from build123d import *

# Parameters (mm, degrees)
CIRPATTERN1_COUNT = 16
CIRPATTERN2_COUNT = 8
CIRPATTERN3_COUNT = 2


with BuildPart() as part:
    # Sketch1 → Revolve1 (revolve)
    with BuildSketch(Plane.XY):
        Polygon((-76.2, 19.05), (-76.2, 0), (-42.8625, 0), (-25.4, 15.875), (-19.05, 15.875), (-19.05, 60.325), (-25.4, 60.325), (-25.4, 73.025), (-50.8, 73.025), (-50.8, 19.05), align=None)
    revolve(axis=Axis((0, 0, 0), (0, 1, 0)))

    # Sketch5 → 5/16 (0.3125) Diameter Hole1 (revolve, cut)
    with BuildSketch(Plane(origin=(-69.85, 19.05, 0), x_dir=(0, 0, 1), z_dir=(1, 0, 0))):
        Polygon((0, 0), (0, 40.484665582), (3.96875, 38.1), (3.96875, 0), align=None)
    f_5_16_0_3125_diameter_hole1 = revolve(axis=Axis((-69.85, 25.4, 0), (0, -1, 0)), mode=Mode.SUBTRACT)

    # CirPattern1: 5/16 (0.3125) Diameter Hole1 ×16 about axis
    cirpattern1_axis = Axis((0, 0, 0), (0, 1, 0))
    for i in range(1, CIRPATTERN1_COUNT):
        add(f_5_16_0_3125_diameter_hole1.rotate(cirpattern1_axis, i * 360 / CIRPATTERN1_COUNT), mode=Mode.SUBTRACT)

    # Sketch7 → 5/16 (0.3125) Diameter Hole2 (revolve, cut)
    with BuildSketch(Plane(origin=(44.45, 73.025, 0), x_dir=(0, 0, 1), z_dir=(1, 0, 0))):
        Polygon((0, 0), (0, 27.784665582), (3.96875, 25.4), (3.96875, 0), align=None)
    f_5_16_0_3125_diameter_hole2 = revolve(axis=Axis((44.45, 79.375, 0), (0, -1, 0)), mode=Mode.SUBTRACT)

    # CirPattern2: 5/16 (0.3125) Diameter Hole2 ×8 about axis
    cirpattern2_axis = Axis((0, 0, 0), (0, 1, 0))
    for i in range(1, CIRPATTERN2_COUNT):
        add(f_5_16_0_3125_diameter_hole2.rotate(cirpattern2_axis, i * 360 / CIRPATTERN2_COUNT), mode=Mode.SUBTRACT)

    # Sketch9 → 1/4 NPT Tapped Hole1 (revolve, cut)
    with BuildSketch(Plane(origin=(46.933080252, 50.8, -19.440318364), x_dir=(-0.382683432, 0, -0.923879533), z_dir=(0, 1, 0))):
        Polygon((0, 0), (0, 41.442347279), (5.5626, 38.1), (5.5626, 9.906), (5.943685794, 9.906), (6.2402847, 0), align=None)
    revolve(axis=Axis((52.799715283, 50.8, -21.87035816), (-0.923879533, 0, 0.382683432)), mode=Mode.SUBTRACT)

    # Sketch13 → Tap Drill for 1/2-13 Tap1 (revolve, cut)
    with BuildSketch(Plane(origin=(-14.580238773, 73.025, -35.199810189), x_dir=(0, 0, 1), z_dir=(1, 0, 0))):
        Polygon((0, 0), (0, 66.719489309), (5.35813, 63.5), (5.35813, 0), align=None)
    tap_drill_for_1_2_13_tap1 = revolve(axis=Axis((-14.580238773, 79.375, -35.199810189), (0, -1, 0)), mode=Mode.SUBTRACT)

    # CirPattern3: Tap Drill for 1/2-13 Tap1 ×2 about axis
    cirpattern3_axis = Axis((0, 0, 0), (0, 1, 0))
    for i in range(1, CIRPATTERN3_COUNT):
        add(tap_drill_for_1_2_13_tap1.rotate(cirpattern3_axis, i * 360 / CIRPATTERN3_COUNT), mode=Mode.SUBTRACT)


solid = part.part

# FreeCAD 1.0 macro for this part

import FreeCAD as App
import Part
import Sketcher
from FreeCAD import Vector
Q = App.Units.Quantity


def add_polygon(sketch, points):
    """Adds a closed chain of lines whose ends are joined by coincident constraints."""
    first, n = sketch.GeometryCount, len(points)
    for a, b in zip(points, points[1:] + points[:1]):
        sketch.addGeometry(Part.LineSegment(App.Vector(*a, 0), App.Vector(*b, 0)), False)
    for i in range(n):
        sketch.addConstraint(Sketcher.Constraint("Coincident", first + i, 2, first + (i + 1) % n, 1))

doc = App.newDocument("Part")
body = doc.addObject("PartDesign::Body", "Body")

sketch1 = body.newObject("Sketcher::SketchObject", "Sketch")
sketch1.AttachmentSupport = (doc.getObject("XY_Plane"), [""])
sketch1.MapMode = "FlatFace"
add_polygon(sketch1, [(-76, 19), (-76, 0), (-43, 0), (-25, 16), (-19, 16), (-19, 60), (-25, 60), (-25, 73), (-51, 73), (-51, 19)])
sketch1.addConstraint([
    Sketcher.Constraint("Vertical", 0),
    Sketcher.Constraint("Horizontal", 1),
    Sketcher.Constraint("Horizontal", 3),
    Sketcher.Constraint("Vertical", 4),
    Sketcher.Constraint("Horizontal", 5),
    Sketcher.Constraint("Vertical", 6),
    Sketcher.Constraint("Horizontal", 7),
    Sketcher.Constraint("Vertical", 8),
    Sketcher.Constraint("Horizontal", 9),
    Sketcher.Constraint("PointOnObject", 0, 2, -1),
    Sketcher.Constraint("Vertical", 2, 2, 5, 2),
    Sketcher.Constraint("Equal", 7, 9),
    Sketcher.Constraint("DistanceX", 7, 2, 7, 1, Q("1 in")),
    Sketcher.Constraint("DistanceY", 6, 1, 6, 2, Q("0.5 in")),
    Sketcher.Constraint("DistanceX", 0, 2, -1, 1, Q("3 in")),
    Sketcher.Constraint("DistanceX", 3, 1, 3, 2, Q("0.25 in")),
    Sketcher.Constraint("DistanceY", 0, 2, 0, 1, Q("0.75 in")),
    Sketcher.Constraint("DistanceY", 4, 1, 4, 2, Q("1.75 in")),
    Sketcher.Constraint("DistanceX", 1, 1, 1, 2, Q("1.3125 in")),
    Sketcher.Constraint("DistanceY", 8, 2, 8, 1, Q("2.125 in")),
])
revolution = body.newObject("PartDesign::Revolution", "Revolution")
revolution.Profile = sketch1
revolution.ReferenceAxis = (sketch1, ["V_Axis"])
revolution.Angle = 360

sketch2 = body.newObject("Sketcher::SketchObject", "Sketch001")
sketch2.AttachmentSupport = (doc.getObject("YZ_Plane"), [""])
sketch2.MapMode = "FlatFace"
sketch2.AttachmentOffset = App.Placement(Vector(0, 0, -2.75 * 25.4), App.Rotation())
add_polygon(sketch2, [(-21.4, 0), (19.1, 0), (19.1, 4), (-19.1, 4)])
sketch2.addConstraint([
    Sketcher.Constraint("Horizontal", 0),
    Sketcher.Constraint("Vertical", 1),
    Sketcher.Constraint("Horizontal", 2),
    Sketcher.Constraint("PointOnObject", 0, 2, -1),
    Sketcher.Constraint("DistanceX", 2, 2, 2, 1, Q("1.5 in")),
    Sketcher.Constraint("Angle", 3, Q("-121 deg")),
    Sketcher.Constraint("DistanceY", 1, 1, 1, 2, Q("0.15625 in")),
    Sketcher.Constraint("DistanceX", -1, 1, 0, 2, Q("0.75 in")),
])
groove = body.newObject("PartDesign::Groove", "Groove")
groove.Profile = sketch2
groove.ReferenceAxis = (sketch2, ["H_Axis"])
groove.Angle = 360
doc.recompute()

polarpattern = body.newObject("PartDesign::PolarPattern", "PolarPattern")
polarpattern.Originals = [groove]
polarpattern.Axis = (doc.getObject("Y_Axis"), [""])
polarpattern.Angle = 360
polarpattern.Occurrences = 16
body.Tip = polarpattern

sketch3 = body.newObject("Sketcher::SketchObject", "Sketch002")
sketch3.AttachmentSupport = (doc.getObject("YZ_Plane"), [""])
sketch3.MapMode = "FlatFace"
sketch3.AttachmentOffset = App.Placement(Vector(0, 0, 1.75 * 25.4), App.Rotation())
add_polygon(sketch3, [(45.2, 0), (73, 0), (73, 4), (47.6, 4)])
sketch3.addConstraint([
    Sketcher.Constraint("Horizontal", 0),
    Sketcher.Constraint("Vertical", 1),
    Sketcher.Constraint("Horizontal", 2),
    Sketcher.Constraint("PointOnObject", 0, 2, -1),
    Sketcher.Constraint("DistanceX", 2, 2, 2, 1, Q("1 in")),
    Sketcher.Constraint("Angle", 3, Q("-121 deg")),
    Sketcher.Constraint("DistanceY", 1, 1, 1, 2, Q("0.15625 in")),
    Sketcher.Constraint("DistanceX", -1, 1, 0, 2, Q("2.875 in")),
])
groove2 = body.newObject("PartDesign::Groove", "Groove001")
groove2.Profile = sketch3
groove2.ReferenceAxis = (sketch3, ["H_Axis"])
groove2.Angle = 360
doc.recompute()

polarpattern2 = body.newObject("PartDesign::PolarPattern", "PolarPattern001")
polarpattern2.Originals = [groove2]
polarpattern2.Axis = (doc.getObject("Y_Axis"), [""])
polarpattern2.Angle = 360
polarpattern2.Occurrences = 8
body.Tip = polarpattern2

sketch4 = body.newObject("Sketcher::SketchObject", "Sketch003")
sketch4.AttachmentSupport = (doc.getObject("XZ_Plane"), [""])
sketch4.MapMode = "FlatFace"
sketch4.AttachmentOffset = App.Placement(Vector(0, 0, -2 * 25.4), App.Rotation())
add_polygon(sketch4, [(8.65, -3.58), (46.93, -19.44), (44.55, -25.21), (35.51, -21.14), (35.65, -20.79), (9.6, -10)])
sketch4.addGeometry(Part.LineSegment(Vector(46.93, -19.44, 0), Vector(8.65, -3.58, 0)), True)
sketch4.addConstraint([
    Sketcher.Constraint("Coincident", 6, 1, 0, 2),
    Sketcher.Constraint("Coincident", 6, 2, 5, 2),
    Sketcher.Constraint("Perpendicular", 0, 1),
    Sketcher.Constraint("Parallel", 1, 3),
    Sketcher.Constraint("Perpendicular", 3, 4),
    Sketcher.Constraint("Angle", 0, Q("-22.5 deg")),
    Sketcher.Constraint("Angle", 5, Q("98.5 deg")),
    Sketcher.Constraint("Distance", 4, Q("1.11 in")),
    Sketcher.Constraint("DistanceX", 2, 2, 0, 2, Q("11.426501 mm")),
    Sketcher.Constraint("DistanceY", 0, 2, 5, 2, Q("15.8593 mm")),
    Sketcher.Constraint("Distance", 2, Q("9.910439 mm")),
    Sketcher.Constraint("DistanceX", -1, 1, 0, 2, Q("46.93308 mm")),
    Sketcher.Constraint("DistanceY", 0, 2, -1, 1, Q("19.440318 mm")),
    Sketcher.Constraint("DistanceY", 1, 2, -1, 1, Q("25.20559 mm")),
])
groove3 = body.newObject("PartDesign::Groove", "Groove002")
groove3.Profile = sketch4
groove3.ReferenceAxis = (sketch4, ["Axis0"])
groove3.Angle = 360

sketch5 = body.newObject("Sketcher::SketchObject", "Sketch004")
sketch5.AttachmentSupport = (doc.getObject("YZ_Plane"), [""])
sketch5.MapMode = "FlatFace"
sketch5.AttachmentOffset = App.Placement(Vector(0, 0, -14.580239), App.Rotation())
add_polygon(sketch5, [(6, -35), (73, -35), (73, -30), (10, -30)])
sketch5.addGeometry(Part.LineSegment(Vector(73, -35, 0), Vector(6, -35, 0)), True)
sketch5.addConstraint([
    Sketcher.Constraint("Horizontal", 0),
    Sketcher.Constraint("Vertical", 1),
    Sketcher.Constraint("Horizontal", 2),
    Sketcher.Constraint("Horizontal", 4),
    Sketcher.Constraint("Coincident", 4, 1, 0, 2),
    Sketcher.Constraint("Equal", 0, 4),
    Sketcher.Constraint("DistanceX", 2, 2, 2, 1, Q("2.5 in")),
    Sketcher.Constraint("Angle", 3, Q("-121 deg")),
    Sketcher.Constraint("DistanceX", -1, 1, 0, 2, Q("2.875 in")),
    Sketcher.Constraint("DistanceX", 0, 1, 0, 2, Q("66.719489 mm")),
    Sketcher.Constraint("DistanceY", 0, 2, -1, 1, Q("35.19981 mm")),
])
groove4 = body.newObject("PartDesign::Groove", "Groove003")
groove4.Profile = sketch5
groove4.ReferenceAxis = (sketch5, ["Axis0"])
groove4.Angle = 360
doc.recompute()

polarpattern3 = body.newObject("PartDesign::PolarPattern", "PolarPattern002")
polarpattern3.Originals = [groove4]
polarpattern3.Axis = (doc.getObject("Y_Axis"), [""])
polarpattern3.Angle = 360
polarpattern3.Occurrences = 2
body.Tip = polarpattern3

doc.recompute()
